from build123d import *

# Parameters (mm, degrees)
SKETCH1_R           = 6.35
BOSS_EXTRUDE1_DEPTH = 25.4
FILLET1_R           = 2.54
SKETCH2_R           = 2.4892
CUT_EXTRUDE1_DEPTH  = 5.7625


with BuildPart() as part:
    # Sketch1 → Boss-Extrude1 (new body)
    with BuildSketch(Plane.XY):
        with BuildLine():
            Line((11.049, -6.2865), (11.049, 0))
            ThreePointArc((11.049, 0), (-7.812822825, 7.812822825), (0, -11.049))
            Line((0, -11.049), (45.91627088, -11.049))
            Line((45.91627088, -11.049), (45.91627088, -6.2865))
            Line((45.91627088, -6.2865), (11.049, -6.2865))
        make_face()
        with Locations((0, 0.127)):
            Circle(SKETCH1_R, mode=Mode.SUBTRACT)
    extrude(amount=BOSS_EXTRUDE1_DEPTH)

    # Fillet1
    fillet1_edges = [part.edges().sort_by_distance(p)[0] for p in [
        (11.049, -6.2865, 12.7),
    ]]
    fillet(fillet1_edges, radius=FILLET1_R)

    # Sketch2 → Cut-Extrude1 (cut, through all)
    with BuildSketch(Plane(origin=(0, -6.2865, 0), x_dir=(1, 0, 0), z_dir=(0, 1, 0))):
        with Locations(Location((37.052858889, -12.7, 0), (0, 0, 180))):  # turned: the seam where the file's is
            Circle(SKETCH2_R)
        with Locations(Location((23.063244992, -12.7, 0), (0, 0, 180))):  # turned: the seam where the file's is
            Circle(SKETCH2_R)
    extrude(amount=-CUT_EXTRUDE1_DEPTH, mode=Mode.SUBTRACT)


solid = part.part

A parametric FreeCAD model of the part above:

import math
import FreeCAD as App
import Part
import Sketcher
from FreeCAD import Vector
Q = App.Units.Quantity


def edges_at(feature, points):
    """Names of the edges that pass closest to the given points."""
    edges = feature.Shape.Edges
    near = lambda p: min(range(len(edges)), key=lambda i: edges[i].distToShape(Part.Vertex(*p))[0])
    return sorted({f"Edge{near(p) + 1}" for p in points})

doc = App.newDocument("Part")
body = doc.addObject("PartDesign::Body", "Body")

# Sketch on XY plane
sketch1 = body.newObject("Sketcher::SketchObject", "Sketch")
sketch1.AttachmentSupport = (doc.getObject("XY_Plane"), [""])
sketch1.MapMode = "FlatFace"
sketch1.addGeometry(Part.LineSegment(Vector(11, -6.3, 0), Vector(11, 0, 0)), False)
sketch1.addGeometry(Part.ArcOfCircle(Part.Circle(Vector(0, 0, 0), Vector(0, 0, 1), 11), math.radians(0), math.radians(270)), False)
sketch1.addGeometry(Part.LineSegment(Vector(0, -11, 0), Vector(45.9, -11, 0)), False)
sketch1.addGeometry(Part.LineSegment(Vector(45.9, -11, 0), Vector(45.9, -6.3, 0)), False)
sketch1.addGeometry(Part.LineSegment(Vector(45.9, -6.3, 0), Vector(11, -6.3, 0)), False)
sketch1.addGeometry(Part.Circle(Vector(0, 0.1, 0), Vector(0, 0, 1), 6.3), False)
sketch1.addConstraint(Sketcher.Constraint("Tangent", 0, 2, 1, 1))
sketch1.addConstraint(Sketcher.Constraint("Tangent", 1, 2, 2, 1))
sketch1.addConstraint(Sketcher.Constraint("Coincident", 2, 2, 3, 1))
sketch1.addConstraint(Sketcher.Constraint("Coincident", 3, 2, 4, 1))
sketch1.addConstraint(Sketcher.Constraint("Coincident", 4, 2, 0, 1))
sketch1.addConstraint(Sketcher.Constraint("Vertical", 0))
sketch1.addConstraint(Sketcher.Constraint("Horizontal", 2))
sketch1.addConstraint(Sketcher.Constraint("Vertical", 3))
sketch1.addConstraint(Sketcher.Constraint("Horizontal", 4))
sketch1.addConstraint(Sketcher.Constraint("Coincident", 1, 3, -1, 1))
sketch1.addConstraint(Sketcher.Constraint("PointOnObject", 5, 3, -2))
sketch1.addConstraint(Sketcher.Constraint("Diameter", 5, Q("0.5 in")))
sketch1.addConstraint(Sketcher.Constraint("Radius", 1, Q("0.435 in")))
sketch1.addConstraint(Sketcher.Constraint("DistanceY", 3, 1, 3, 2, Q("0.1875 in")))
sketch1.addConstraint(Sketcher.Constraint("DistanceY", 1, 2, 5, 3, Q("0.44 in")))
sketch1.addConstraint(Sketcher.Constraint("DistanceX", 2, 1, 2, 2, Q("45.916271 mm")))
pad1 = body.newObject("PartDesign::Pad", "Pad")
pad1.Profile = sketch1
pad1.Length = Q("1 in")
doc.recompute()

fillet = body.newObject("PartDesign::Fillet", "Fillet")
fillet.Base = (pad1, edges_at(pad1, [(11.049, -6.287, 12.7)]))
fillet.Radius = Q("0.1 in")

# Sketch on XZ plane
sketch2 = body.newObject("Sketcher::SketchObject", "Sketch001")
sketch2.AttachmentSupport = (doc.getObject("XZ_Plane"), [""])
sketch2.MapMode = "FlatFace"
sketch2.AttachmentOffset = App.Placement(Vector(0, 0, 0.2475 * 25.4), App.Rotation())
sketch2.addGeometry(Part.Circle(Vector(37.1, 12.7, 0), Vector(0, 0, 1), 2.5), False)
sketch2.addGeometry(Part.Circle(Vector(23.1, 12.7, 0), Vector(0, 0, 1), 2.5), False)
sketch2.addConstraint(Sketcher.Constraint("Equal", 0, 1))
sketch2.addConstraint(Sketcher.Constraint("Horizontal", 0, 3, 1, 3))
sketch2.addConstraint(Sketcher.Constraint("Diameter", 0, Q("0.196 in")))
sketch2.addConstraint(Sketcher.Constraint("DistanceY", -1, 1, 0, 3, Q("0.5 in")))
sketch2.addConstraint(Sketcher.Constraint("DistanceX", -1, 1, 0, 3, Q("37.052859 mm")))
sketch2.addConstraint(Sketcher.Constraint("DistanceX", -1, 1, 1, 3, Q("23.063245 mm")))
pocket1 = body.newObject("PartDesign::Pocket", "Pocket")
pocket1.Profile = sketch2
pocket1.Type = "ThroughAll"
pocket1.Reversed = True

doc.recompute()
